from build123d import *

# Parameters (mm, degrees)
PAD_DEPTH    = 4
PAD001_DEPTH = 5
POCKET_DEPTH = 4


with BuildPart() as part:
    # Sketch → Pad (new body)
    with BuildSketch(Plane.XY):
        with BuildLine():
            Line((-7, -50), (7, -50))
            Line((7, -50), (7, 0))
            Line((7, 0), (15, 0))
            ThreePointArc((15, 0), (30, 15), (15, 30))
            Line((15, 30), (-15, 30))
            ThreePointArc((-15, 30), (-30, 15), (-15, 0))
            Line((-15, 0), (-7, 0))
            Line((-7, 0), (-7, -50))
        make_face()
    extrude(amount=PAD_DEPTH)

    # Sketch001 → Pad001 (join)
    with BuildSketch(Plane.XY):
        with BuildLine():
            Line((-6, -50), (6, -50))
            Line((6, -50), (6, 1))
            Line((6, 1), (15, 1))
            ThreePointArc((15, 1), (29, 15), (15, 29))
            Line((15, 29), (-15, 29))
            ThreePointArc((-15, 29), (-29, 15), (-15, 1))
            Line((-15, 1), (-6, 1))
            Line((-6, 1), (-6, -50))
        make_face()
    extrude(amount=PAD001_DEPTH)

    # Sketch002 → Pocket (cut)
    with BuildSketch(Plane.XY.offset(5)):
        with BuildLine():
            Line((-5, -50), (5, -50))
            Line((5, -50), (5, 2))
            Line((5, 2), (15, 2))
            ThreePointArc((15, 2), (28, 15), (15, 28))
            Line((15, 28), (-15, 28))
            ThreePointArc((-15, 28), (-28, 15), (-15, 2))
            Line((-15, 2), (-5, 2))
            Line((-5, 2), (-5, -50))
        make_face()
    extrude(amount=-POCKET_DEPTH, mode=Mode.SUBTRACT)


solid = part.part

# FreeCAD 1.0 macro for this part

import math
import FreeCAD as App
import Part
import Sketcher
from FreeCAD import Vector

doc = App.newDocument("Part")
body = doc.addObject("PartDesign::Body", "Body")

sketch1 = body.newObject("Sketcher::SketchObject", "Sketch")
sketch1.AttachmentSupport = (doc.getObject("XY_Plane"), [""])
sketch1.MapMode = "FlatFace"
sketch1.addGeometry([
    Part.LineSegment(Vector(-7, -50, 0), Vector(7, -50, 0)),
    Part.LineSegment(Vector(7, -50, 0), Vector(7, 0, 0)),
    Part.LineSegment(Vector(7, 0, 0), Vector(15, 0, 0)),
    Part.ArcOfCircle(Part.Circle(Vector(15, 15, 0), Vector(0, 0, 1), 15), math.radians(-90), math.radians(90)),
    Part.LineSegment(Vector(15, 30, 0), Vector(-15, 30, 0)),
    Part.ArcOfCircle(Part.Circle(Vector(-15, 15, 0), Vector(0, 0, 1), 15), math.radians(90), math.radians(270)),
    Part.LineSegment(Vector(-15, 0, 0), Vector(-7, 0, 0)),
    Part.LineSegment(Vector(-7, 0, 0), Vector(-7, -50, 0)),
], False)
sketch1.addConstraint([
    Sketcher.Constraint("Coincident", 0, 2, 1, 1),
    Sketcher.Constraint("Coincident", 1, 2, 2, 1),
    Sketcher.Constraint("Tangent", 2, 2, 3, 1),
    Sketcher.Constraint("Tangent", 3, 2, 4, 1),
    Sketcher.Constraint("Tangent", 4, 2, 5, 1),
    Sketcher.Constraint("Tangent", 5, 2, 6, 1),
    Sketcher.Constraint("Coincident", 6, 2, 7, 1),
    Sketcher.Constraint("Coincident", 7, 2, 0, 1),
    Sketcher.Constraint("Horizontal", 0),
    Sketcher.Constraint("Vertical", 1),
    Sketcher.Constraint("Horizontal", 2),
    Sketcher.Constraint("Horizontal", 4),
    Sketcher.Constraint("Horizontal", 6),
    Sketcher.Constraint("Vertical", 7),
    Sketcher.Constraint("Equal", 3, 5),
    Sketcher.Constraint("Symmetric", 2, 2, 5, 2, -1, 1),
    Sketcher.Constraint("Equal", 2, 6),
    Sketcher.Constraint("Radius", 3, 15.0),
    Sketcher.Constraint("DistanceX", 0, 1, 0, 2, 14.0),
    Sketcher.Constraint("DistanceX", 2, 1, 2, 2, 8.0),
    Sketcher.Constraint("DistanceY", 1, 1, 1, 2, 50.0),
])
pad1 = body.newObject("PartDesign::Pad", "Pad")
pad1.Profile = sketch1
pad1.Length = 4

sketch2 = body.newObject("Sketcher::SketchObject", "Sketch001")
sketch2.AttachmentSupport = (doc.getObject("XY_Plane"), [""])
sketch2.MapMode = "FlatFace"
sketch2.addGeometry([
    Part.LineSegment(Vector(-6, -50, 0), Vector(6, -50, 0)),
    Part.LineSegment(Vector(6, -50, 0), Vector(6, 1, 0)),
    Part.LineSegment(Vector(6, 1, 0), Vector(15, 1, 0)),
    Part.ArcOfCircle(Part.Circle(Vector(15, 15, 0), Vector(0, 0, 1), 14), math.radians(-90), math.radians(90)),
    Part.LineSegment(Vector(15, 29, 0), Vector(-15, 29, 0)),
    Part.ArcOfCircle(Part.Circle(Vector(-15, 15, 0), Vector(0, 0, 1), 14), math.radians(90), math.radians(270)),
    Part.LineSegment(Vector(-15, 1, 0), Vector(-6, 1, 0)),
    Part.LineSegment(Vector(-6, 1, 0), Vector(-6, -50, 0)),
], False)
sketch2.addConstraint([
    Sketcher.Constraint("Coincident", 0, 2, 1, 1),
    Sketcher.Constraint("Coincident", 1, 2, 2, 1),
    Sketcher.Constraint("Tangent", 2, 2, 3, 1),
    Sketcher.Constraint("Tangent", 3, 2, 4, 1),
    Sketcher.Constraint("Tangent", 4, 2, 5, 1),
    Sketcher.Constraint("Tangent", 5, 2, 6, 1),
    Sketcher.Constraint("Coincident", 6, 2, 7, 1),
    Sketcher.Constraint("Coincident", 7, 2, 0, 1),
    Sketcher.Constraint("Horizontal", 0),
    Sketcher.Constraint("Vertical", 1),
    Sketcher.Constraint("Horizontal", 2),
    Sketcher.Constraint("Horizontal", 4),
    Sketcher.Constraint("Horizontal", 6),
    Sketcher.Constraint("Vertical", 7),
    Sketcher.Constraint("Equal", 3, 5),
    Sketcher.Constraint("Equal", 2, 6),
    Sketcher.Constraint("Radius", 3, 14.0),
    Sketcher.Constraint("DistanceX", 0, 1, 0, 2, 12.0),
    Sketcher.Constraint("DistanceX", 2, 1, 2, 2, 9.0),
    Sketcher.Constraint("DistanceY", 1, 1, 1, 2, 51.0),
    Sketcher.Constraint("DistanceX", -1, 1, 3, 3, 15.0),
    Sketcher.Constraint("DistanceY", -1, 1, 3, 3, 15.0),
])
pad2 = body.newObject("PartDesign::Pad", "Pad001")
pad2.Profile = sketch2
pad2.Length = 5

sketch3 = body.newObject("Sketcher::SketchObject", "Sketch002")
sketch3.AttachmentSupport = (doc.getObject("XY_Plane"), [""])
sketch3.MapMode = "FlatFace"
sketch3.AttachmentOffset = App.Placement(Vector(0, 0, 5), App.Rotation())
sketch3.addGeometry([
    Part.LineSegment(Vector(-5, -50, 0), Vector(5, -50, 0)),
    Part.LineSegment(Vector(5, -50, 0), Vector(5, 2, 0)),
    Part.LineSegment(Vector(5, 2, 0), Vector(15, 2, 0)),
    Part.ArcOfCircle(Part.Circle(Vector(15, 15, 0), Vector(0, 0, 1), 13), math.radians(-90), math.radians(90)),
    Part.LineSegment(Vector(15, 28, 0), Vector(-15, 28, 0)),
    Part.ArcOfCircle(Part.Circle(Vector(-15, 15, 0), Vector(0, 0, 1), 13), math.radians(90), math.radians(270)),
    Part.LineSegment(Vector(-15, 2, 0), Vector(-5, 2, 0)),
    Part.LineSegment(Vector(-5, 2, 0), Vector(-5, -50, 0)),
], False)
sketch3.addConstraint([
    Sketcher.Constraint("Coincident", 0, 2, 1, 1),
    Sketcher.Constraint("Coincident", 1, 2, 2, 1),
    Sketcher.Constraint("Tangent", 2, 2, 3, 1),
    Sketcher.Constraint("Tangent", 3, 2, 4, 1),
    Sketcher.Constraint("Tangent", 4, 2, 5, 1),
    Sketcher.Constraint("Tangent", 5, 2, 6, 1),
    Sketcher.Constraint("Coincident", 6, 2, 7, 1),
    Sketcher.Constraint("Coincident", 7, 2, 0, 1),
    Sketcher.Constraint("Horizontal", 0),
    Sketcher.Constraint("Vertical", 1),
    Sketcher.Constraint("Horizontal", 2),
    Sketcher.Constraint("Horizontal", 4),
    Sketcher.Constraint("Horizontal", 6),
    Sketcher.Constraint("Vertical", 7),
    Sketcher.Constraint("Equal", 3, 5),
    Sketcher.Constraint("Equal", 0, 2),
    Sketcher.Constraint("Equal", 2, 6),
    Sketcher.Constraint("Radius", 3, 13.0),
    Sketcher.Constraint("DistanceX", 0, 1, 0, 2, 10.0),
    Sketcher.Constraint("DistanceY", 1, 1, 1, 2, 52.0),
    Sketcher.Constraint("DistanceX", -1, 1, 3, 3, 15.0),
    Sketcher.Constraint("DistanceY", -1, 1, 3, 3, 15.0),
])
pocket1 = body.newObject("PartDesign::Pocket", "Pocket")
pocket1.Profile = sketch3
pocket1.Length = 4

doc.recompute()
